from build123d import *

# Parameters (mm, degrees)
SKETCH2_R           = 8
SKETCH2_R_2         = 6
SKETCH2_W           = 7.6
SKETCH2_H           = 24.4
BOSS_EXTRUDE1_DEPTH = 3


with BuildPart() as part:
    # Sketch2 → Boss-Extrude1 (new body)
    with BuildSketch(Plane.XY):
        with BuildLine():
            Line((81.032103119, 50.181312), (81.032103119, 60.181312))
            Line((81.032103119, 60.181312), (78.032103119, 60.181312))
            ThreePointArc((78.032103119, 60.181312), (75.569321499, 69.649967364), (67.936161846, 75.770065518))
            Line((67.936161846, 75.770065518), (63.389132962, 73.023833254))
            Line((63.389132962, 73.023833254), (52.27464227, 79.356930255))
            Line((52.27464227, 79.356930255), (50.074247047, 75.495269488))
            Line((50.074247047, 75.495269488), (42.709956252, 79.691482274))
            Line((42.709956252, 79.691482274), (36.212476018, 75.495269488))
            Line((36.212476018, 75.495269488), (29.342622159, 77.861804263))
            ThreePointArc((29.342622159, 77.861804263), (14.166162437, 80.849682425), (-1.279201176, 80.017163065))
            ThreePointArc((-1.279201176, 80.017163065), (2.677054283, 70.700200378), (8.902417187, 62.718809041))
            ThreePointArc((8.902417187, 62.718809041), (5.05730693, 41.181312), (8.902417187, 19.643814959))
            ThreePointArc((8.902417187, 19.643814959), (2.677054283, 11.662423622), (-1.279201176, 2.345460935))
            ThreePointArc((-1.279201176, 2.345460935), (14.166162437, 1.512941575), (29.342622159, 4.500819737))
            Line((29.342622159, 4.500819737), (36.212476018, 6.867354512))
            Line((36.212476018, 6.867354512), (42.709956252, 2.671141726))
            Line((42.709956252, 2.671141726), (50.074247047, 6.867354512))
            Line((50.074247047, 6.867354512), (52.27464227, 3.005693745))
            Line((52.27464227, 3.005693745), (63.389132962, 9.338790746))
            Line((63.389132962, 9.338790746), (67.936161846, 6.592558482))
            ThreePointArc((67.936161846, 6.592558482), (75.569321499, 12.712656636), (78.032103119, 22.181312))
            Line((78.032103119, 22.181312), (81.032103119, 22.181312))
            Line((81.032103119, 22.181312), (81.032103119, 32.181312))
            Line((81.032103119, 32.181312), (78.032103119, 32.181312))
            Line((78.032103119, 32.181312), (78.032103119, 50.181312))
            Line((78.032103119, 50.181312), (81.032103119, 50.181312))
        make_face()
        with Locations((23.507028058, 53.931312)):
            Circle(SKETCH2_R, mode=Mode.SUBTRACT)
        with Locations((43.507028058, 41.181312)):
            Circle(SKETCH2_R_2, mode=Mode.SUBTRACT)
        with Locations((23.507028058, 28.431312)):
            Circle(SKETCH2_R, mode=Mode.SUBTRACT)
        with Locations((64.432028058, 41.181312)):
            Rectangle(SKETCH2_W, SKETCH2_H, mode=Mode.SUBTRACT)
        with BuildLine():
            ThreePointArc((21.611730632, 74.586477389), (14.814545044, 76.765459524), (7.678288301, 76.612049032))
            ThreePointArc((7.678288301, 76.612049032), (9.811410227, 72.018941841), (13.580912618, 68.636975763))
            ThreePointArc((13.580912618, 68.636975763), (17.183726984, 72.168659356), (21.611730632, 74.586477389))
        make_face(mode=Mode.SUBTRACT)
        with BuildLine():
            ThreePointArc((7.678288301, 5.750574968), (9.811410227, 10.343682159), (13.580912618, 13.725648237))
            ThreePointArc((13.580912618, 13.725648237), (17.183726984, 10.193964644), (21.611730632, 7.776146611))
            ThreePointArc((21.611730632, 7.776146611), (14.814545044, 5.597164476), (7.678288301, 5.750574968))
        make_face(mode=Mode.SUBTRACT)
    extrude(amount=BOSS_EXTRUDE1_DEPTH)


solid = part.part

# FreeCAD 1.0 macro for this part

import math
import FreeCAD as App
import Part
import Sketcher
Q = App.Units.Quantity

doc = App.newDocument("Part")
body = doc.addObject("PartDesign::Body", "Body")

# Sketch on XY plane
sketch1 = body.newObject("Sketcher::SketchObject", "Sketch")
sketch1.AttachmentSupport = (doc.getObject("XY_Plane"), [""])
sketch1.MapMode = "FlatFace"
sketch1.addGeometry(Part.LineSegment(App.Vector(81, 50.2, 0), App.Vector(81, 60.2, 0)), False)
sketch1.addGeometry(Part.LineSegment(App.Vector(81, 60.2, 0), App.Vector(78, 60.2, 0)), False)
sketch1.addGeometry(Part.ArcOfCircle(Part.Circle(App.Vector(62.5, 61.2, 0), App.Vector(0, 0, 1), 15.5), math.radians(-4), math.radians(70)), False)
sketch1.addGeometry(Part.LineSegment(App.Vector(67.9, 75.8, 0), App.Vector(63.4, 73, 0)), False)
sketch1.addGeometry(Part.LineSegment(App.Vector(63.4, 73, 0), App.Vector(52.3, 79.4, 0)), False)
sketch1.addGeometry(Part.LineSegment(App.Vector(52.3, 79.4, 0), App.Vector(50.1, 75.5, 0)), False)
sketch1.addGeometry(Part.LineSegment(App.Vector(50.1, 75.5, 0), App.Vector(42.7, 79.7, 0)), False)
sketch1.addGeometry(Part.LineSegment(App.Vector(42.7, 79.7, 0), App.Vector(36.2, 75.5, 0)), False)
sketch1.addGeometry(Part.LineSegment(App.Vector(36.2, 75.5, 0), App.Vector(29.3, 77.9, 0)), False)
sketch1.addGeometry(Part.ArcOfCircle(Part.Circle(App.Vector(9.8, 18.5, 0), App.Vector(0, 0, 1), 62.5), math.radians(72), math.radians(100)), False)
sketch1.addGeometry(Part.ArcOfCircle(Part.Circle(App.Vector(36.2, 90.4, 0), App.Vector(0, 0, 1), 38.9), math.radians(-164), math.radians(-135)), False)
sketch1.addGeometry(Part.ArcOfCircle(Part.Circle(App.Vector(67.3, 41.2, 0), App.Vector(0, 0, 1), 62.2), math.radians(160), math.radians(200)), False)
sketch1.addGeometry(Part.ArcOfCircle(Part.Circle(App.Vector(36.2, -8.1, 0), App.Vector(0, 0, 1), 38.9), math.radians(135), math.radians(164)), False)
sketch1.addGeometry(Part.ArcOfCircle(Part.Circle(App.Vector(9.8, 63.8, 0), App.Vector(0, 0, 1), 62.5), math.radians(-100), math.radians(-72)), False)
sketch1.addGeometry(Part.LineSegment(App.Vector(29.3, 4.5, 0), App.Vector(36.2, 6.9, 0)), False)
sketch1.addGeometry(Part.LineSegment(App.Vector(36.2, 6.9, 0), App.Vector(42.7, 2.7, 0)), False)
sketch1.addGeometry(Part.LineSegment(App.Vector(42.7, 2.7, 0), App.Vector(50.1, 6.9, 0)), False)
sketch1.addGeometry(Part.LineSegment(App.Vector(50.1, 6.9, 0), App.Vector(52.3, 3, 0)), False)
sketch1.addGeometry(Part.LineSegment(App.Vector(52.3, 3, 0), App.Vector(63.4, 9.3, 0)), False)
sketch1.addGeometry(Part.LineSegment(App.Vector(63.4, 9.3, 0), App.Vector(67.9, 6.6, 0)), False)
sketch1.addGeometry(Part.ArcOfCircle(Part.Circle(App.Vector(62.5, 21.2, 0), App.Vector(0, 0, 1), 15.5), math.radians(-70), math.radians(4)), False)
sketch1.addGeometry(Part.LineSegment(App.Vector(78, 22.2, 0), App.Vector(81, 22.2, 0)), False)
sketch1.addGeometry(Part.LineSegment(App.Vector(81, 22.2, 0), App.Vector(81, 32.2, 0)), False)
sketch1.addGeometry(Part.LineSegment(App.Vector(81, 32.2, 0), App.Vector(78, 32.2, 0)), False)
sketch1.addGeometry(Part.LineSegment(App.Vector(78, 32.2, 0), App.Vector(78, 50.2, 0)), False)
sketch1.addGeometry(Part.LineSegment(App.Vector(78, 50.2, 0), App.Vector(81, 50.2, 0)), False)
sketch1.addGeometry(Part.ArcOfCircle(Part.Circle(App.Vector(11.7, 27, 0), App.Vector(0, 0, 1), 21.6), math.radians(-101), math.radians(-63)), False)
sketch1.addGeometry(Part.ArcOfCircle(Part.Circle(App.Vector(19.9, 2.8, 0), App.Vector(0, 0, 1), 12.6), math.radians(120), math.radians(167)), False)
sketch1.addGeometry(Part.ArcOfCircle(Part.Circle(App.Vector(28.1, 24.9, 0), App.Vector(0, 0, 1), 18.4), math.radians(-142), math.radians(-111)), False)
sketch1.addGeometry(Part.Circle(App.Vector(23.5, 28.4, 0), App.Vector(0, 0, 1), 8), False)
sketch1.addGeometry(Part.Circle(App.Vector(23.5, 53.9, 0), App.Vector(0, 0, 1), 8), False)
sketch1.addGeometry(Part.ArcOfCircle(Part.Circle(App.Vector(11.7, 55.4, 0), App.Vector(0, 0, 1), 21.6), math.radians(63), math.radians(101)), False)
sketch1.addGeometry(Part.ArcOfCircle(Part.Circle(App.Vector(28.1, 57.4, 0), App.Vector(0, 0, 1), 18.4), math.radians(111), math.radians(142)), False)
sketch1.addGeometry(Part.ArcOfCircle(Part.Circle(App.Vector(19.9, 79.5, 0), App.Vector(0, 0, 1), 12.6), math.radians(-167), math.radians(-120)), False)
sketch1.addGeometry(Part.Circle(App.Vector(43.5, 41.2, 0), App.Vector(0, 0, 1), 6), False)
sketch1.addGeometry(Part.LineSegment(App.Vector(68.2, 29, 0), App.Vector(60.6, 29, 0)), False)
sketch1.addGeometry(Part.LineSegment(App.Vector(60.6, 29, 0), App.Vector(60.6, 53.4, 0)), False)
sketch1.addGeometry(Part.LineSegment(App.Vector(60.6, 53.4, 0), App.Vector(68.2, 53.4, 0)), False)
sketch1.addGeometry(Part.LineSegment(App.Vector(68.2, 53.4, 0), App.Vector(68.2, 29, 0)), False)
sketch1.addConstraint(Sketcher.Constraint("Coincident", 0, 2, 1, 1))
sketch1.addConstraint(Sketcher.Constraint("Coincident", 1, 2, 2, 1))
sketch1.addConstraint(Sketcher.Constraint("Coincident", 2, 2, 3, 1))
sketch1.addConstraint(Sketcher.Constraint("Coincident", 3, 2, 4, 1))
sketch1.addConstraint(Sketcher.Constraint("Coincident", 4, 2, 5, 1))
sketch1.addConstraint(Sketcher.Constraint("Coincident", 5, 2, 6, 1))
sketch1.addConstraint(Sketcher.Constraint("Coincident", 6, 2, 7, 1))
sketch1.addConstraint(Sketcher.Constraint("Coincident", 7, 2, 8, 1))
sketch1.addConstraint(Sketcher.Constraint("Coincident", 8, 2, 9, 1))
sketch1.addConstraint(Sketcher.Constraint("Coincident", 9, 2, 10, 1))
sketch1.addConstraint(Sketcher.Constraint("Coincident", 10, 2, 11, 1))
sketch1.addConstraint(Sketcher.Constraint("Coincident", 11, 2, 12, 1))
sketch1.addConstraint(Sketcher.Constraint("Coincident", 12, 2, 13, 1))
sketch1.addConstraint(Sketcher.Constraint("Coincident", 13, 2, 14, 1))
sketch1.addConstraint(Sketcher.Constraint("Coincident", 14, 2, 15, 1))
sketch1.addConstraint(Sketcher.Constraint("Coincident", 15, 2, 16, 1))
sketch1.addConstraint(Sketcher.Constraint("Coincident", 16, 2, 17, 1))
sketch1.addConstraint(Sketcher.Constraint("Coincident", 17, 2, 18, 1))
sketch1.addConstraint(Sketcher.Constraint("Coincident", 18, 2, 19, 1))
sketch1.addConstraint(Sketcher.Constraint("Coincident", 19, 2, 20, 1))
sketch1.addConstraint(Sketcher.Constraint("Coincident", 20, 2, 21, 1))
sketch1.addConstraint(Sketcher.Constraint("Coincident", 21, 2, 22, 1))
sketch1.addConstraint(Sketcher.Constraint("Coincident", 22, 2, 23, 1))
sketch1.addConstraint(Sketcher.Constraint("Coincident", 23, 2, 24, 1))
sketch1.addConstraint(Sketcher.Constraint("Coincident", 24, 2, 25, 1))
sketch1.addConstraint(Sketcher.Constraint("Coincident", 25, 2, 0, 1))
sketch1.addConstraint(Sketcher.Constraint("Coincident", 26, 1, 27, 2))
sketch1.addConstraint(Sketcher.Constraint("Coincident", 27, 1, 28, 1))
sketch1.addConstraint(Sketcher.Constraint("Coincident", 28, 2, 26, 2))
sketch1.addConstraint(Sketcher.Constraint("Coincident", 31, 1, 32, 1))
sketch1.addConstraint(Sketcher.Constraint("Coincident", 32, 2, 33, 2))
sketch1.addConstraint(Sketcher.Constraint("Coincident", 33, 1, 31, 2))
sketch1.addConstraint(Sketcher.Constraint("Coincident", 35, 2, 36, 1))
sketch1.addConstraint(Sketcher.Constraint("Coincident", 36, 2, 37, 1))
sketch1.addConstraint(Sketcher.Constraint("Coincident", 37, 2, 38, 1))
sketch1.addConstraint(Sketcher.Constraint("Coincident", 38, 2, 35, 1))
sketch1.addConstraint(Sketcher.Constraint("Vertical", 0))
sketch1.addConstraint(Sketcher.Constraint("Horizontal", 1))
sketch1.addConstraint(Sketcher.Constraint("Horizontal", 21))
sketch1.addConstraint(Sketcher.Constraint("Vertical", 22))
sketch1.addConstraint(Sketcher.Constraint("Horizontal", 23))
sketch1.addConstraint(Sketcher.Constraint("Vertical", 24))
sketch1.addConstraint(Sketcher.Constraint("Horizontal", 25))
sketch1.addConstraint(Sketcher.Constraint("Horizontal", 35))
sketch1.addConstraint(Sketcher.Constraint("Vertical", 36))
sketch1.addConstraint(Sketcher.Constraint("Horizontal", 37))
sketch1.addConstraint(Sketcher.Constraint("Vertical", 38))
sketch1.addConstraint(Sketcher.Constraint("Equal", 10, 12))
sketch1.addConstraint(Sketcher.Constraint("Equal", 9, 13))
sketch1.addConstraint(Sketcher.Constraint("Equal", 2, 20))
sketch1.addConstraint(Sketcher.Constraint("Equal", 29, 30))
sketch1.addConstraint(Sketcher.Constraint("Equal", 26, 31))
sketch1.addConstraint(Sketcher.Constraint("Equal", 28, 32))
sketch1.addConstraint(Sketcher.Constraint("Equal", 27, 33))
sketch1.addConstraint(Sketcher.Constraint("Perpendicular", 4, 5))
sketch1.addConstraint(Sketcher.Constraint("Perpendicular", 5, 6))
sketch1.addConstraint(Sketcher.Constraint("Perpendicular", 16, 17))
sketch1.addConstraint(Sketcher.Constraint("Perpendicular", 17, 18))
sketch1.addConstraint(Sketcher.Constraint("Horizontal", 11, 3, 34, 3))
sketch1.addConstraint(Sketcher.Constraint("Horizontal", 5, 2, 7, 2))
sketch1.addConstraint(Sketcher.Constraint("Horizontal", 14, 2, 16, 2))
sketch1.addConstraint(Sketcher.Constraint("Vertical", 10, 3, 12, 3))
sketch1.addConstraint(Sketcher.Constraint("Vertical", 9, 3, 13, 3))
sketch1.addConstraint(Sketcher.Constraint("Vertical", 2, 3, 20, 3))
sketch1.addConstraint(Sketcher.Constraint("Vertical", 29, 3, 30, 3))
sketch1.addConstraint(Sketcher.Constraint("Vertical", 26, 3, 31, 3))
sketch1.addConstraint(Sketcher.Constraint("Vertical", 28, 3, 32, 3))
sketch1.addConstraint(Sketcher.Constraint("Vertical", 27, 3, 33, 3))
sketch1.addConstraint(Sketcher.Constraint("Vertical", 12, 3, 7, 2))
sketch1.addConstraint(Sketcher.Constraint("Vertical", 10, 2, 11, 2))
sketch1.addConstraint(Sketcher.Constraint("Vertical", 9, 2, 12, 2))
sketch1.addConstraint(Sketcher.Constraint("Vertical", 8, 2, 13, 2))
sketch1.addConstraint(Sketcher.Constraint("Vertical", 7, 2, 14, 2))
sketch1.addConstraint(Sketcher.Constraint("Vertical", 6, 2, 15, 2))
sketch1.addConstraint(Sketcher.Constraint("Vertical", 5, 2, 16, 2))
sketch1.addConstraint(Sketcher.Constraint("Vertical", 4, 2, 17, 2))
sketch1.addConstraint(Sketcher.Constraint("Vertical", 3, 2, 18, 2))
sketch1.addConstraint(Sketcher.Constraint("Vertical", 2, 2, 19, 2))
sketch1.addConstraint(Sketcher.Constraint("Vertical", 1, 2, 20, 2))
sketch1.addConstraint(Sketcher.Constraint("Vertical", 0, 2, 21, 2))
sketch1.addConstraint(Sketcher.Constraint("Vertical", 20, 2, 23, 2))
sketch1.addConstraint(Sketcher.Constraint("Vertical", 28, 2, 31, 1))
sketch1.addConstraint(Sketcher.Constraint("Vertical", 27, 1, 32, 2))
sketch1.addConstraint(Sketcher.Constraint("Equal", 0, 22))
sketch1.addConstraint(Sketcher.Constraint("Equal", 8, 14))
sketch1.addConstraint(Sketcher.Constraint("Equal", 7, 15))
sketch1.addConstraint(Sketcher.Constraint("Equal", 3, 19))
sketch1.addConstraint(Sketcher.Constraint("Diameter", 29, Q("16 mm")))
sketch1.addConstraint(Sketcher.Constraint("Diameter", 34, Q("12 mm")))
sketch1.addConstraint(Sketcher.Constraint("DistanceX", 1, 2, 1, 1, Q("3 mm")))
sketch1.addConstraint(Sketcher.Constraint("DistanceY", 0, 1, 0, 2, Q("10 mm")))
sketch1.addConstraint(Sketcher.Constraint("DistanceY", 24, 1, 24, 2, Q("18 mm")))
sketch1.addConstraint(Sketcher.Constraint("DistanceX", 35, 2, 35, 1, Q("7.6 mm")))
sketch1.addConstraint(Sketcher.Constraint("DistanceY", 36, 1, 36, 2, Q("24.4 mm")))
sketch1.addConstraint(Sketcher.Constraint("DistanceX", 29, 3, 34, 3, Q("20 mm")))
sketch1.addConstraint(Sketcher.Constraint("DistanceY", 29, 3, 30, 3, Q("25.5 mm")))
sketch1.addConstraint(Sketcher.Constraint("DistanceY", 35, 2, 11, 3, Q("12.2 mm")))
sketch1.addConstraint(Sketcher.Constraint("Radius", 2, Q("15.53907 mm")))
sketch1.addConstraint(Sketcher.Constraint("Radius", 9, Q("62.470432 mm")))
sketch1.addConstraint(Sketcher.Constraint("DistanceY", 29, 3, 34, 3, Q("12.75 mm")))
sketch1.addConstraint(Sketcher.Constraint("Radius", 10, Q("38.913184 mm")))
sketch1.addConstraint(Sketcher.Constraint("Radius", 11, Q("62.241213 mm")))
sketch1.addConstraint(Sketcher.Constraint("Radius", 26, Q("21.617158 mm")))
sketch1.addConstraint(Sketcher.Constraint("Radius", 27, Q("12.597733 mm")))
sketch1.addConstraint(Sketcher.Constraint("Radius", 28, Q("18.361353 mm")))
sketch1.addConstraint(Sketcher.Constraint("DistanceY", -1, 1, 13, 3, Q("63.829199 mm")))
sketch1.addConstraint(Sketcher.Constraint("DistanceX", 9, 2, -1, 1, Q("1.279201 mm")))
sketch1.addConstraint(Sketcher.Constraint("DistanceX", 9, 3, 27, 3, Q("10.157398 mm")))
sketch1.addConstraint(Sketcher.Constraint("DistanceX", 26, 3, 27, 3, Q("8.232701 mm")))
sketch1.addConstraint(Sketcher.Constraint("DistanceY", 28, 2, 27, 1, Q("5.949502 mm")))
sketch1.addConstraint(Sketcher.Constraint("Distance", 7, Q("7.734691 mm")))
sketch1.addConstraint(Sketcher.Constraint("DistanceY", -1, 1, 2, 3, Q("61.202981 mm")))
sketch1.addConstraint(Sketcher.Constraint("DistanceX", -1, 1, 11, 3, Q("67.29852 mm")))
sketch1.addConstraint(Sketcher.Constraint("DistanceY", -1, 1, 11, 3, Q("41.181312 mm")))
sketch1.addConstraint(Sketcher.Constraint("DistanceY", 12, 3, -1, 1, Q("8.076152 mm")))
sketch1.addConstraint(Sketcher.Constraint("DistanceY", -1, 1, 27, 3, Q("2.849131 mm")))
sketch1.addConstraint(Sketcher.Constraint("DistanceX", -1, 1, 29, 3, Q("23.507028 mm")))
sketch1.addConstraint(Sketcher.Constraint("DistanceY", -1, 1, 31, 3, Q("55.37317 mm")))
sketch1.addConstraint(Sketcher.Constraint("DistanceY", -1, 1, 32, 3, Q("57.414919 mm")))
sketch1.addConstraint(Sketcher.Constraint("DistanceX", -1, 1, 2, 2, Q("67.936162 mm")))
sketch1.addConstraint(Sketcher.Constraint("DistanceY", -1, 1, 4, 2, Q("79.35693 mm")))
sketch1.addConstraint(Sketcher.Constraint("DistanceY", -1, 1, 5, 2, Q("75.495269 mm")))
sketch1.addConstraint(Sketcher.Constraint("DistanceY", -1, 1, 13, 2, Q("4.50082 mm")))
sketch1.addConstraint(Sketcher.Constraint("DistanceY", -1, 1, 15, 2, Q("2.671142 mm")))
sketch1.addConstraint(Sketcher.Constraint("DistanceY", -1, 1, 18, 2, Q("9.338791 mm")))
sketch1.addConstraint(Sketcher.Constraint("DistanceY", -1, 1, 19, 2, Q("6.592558 mm")))
sketch1.addConstraint(Sketcher.Constraint("DistanceX", -1, 1, 26, 1, Q("7.678288 mm")))
sketch1.addConstraint(Sketcher.Constraint("DistanceY", -1, 1, 27, 1, Q("13.725648 mm")))
sketch1.addConstraint(Sketcher.Constraint("DistanceX", -1, 1, 35, 2, Q("60.632028 mm")))
sketch1.addConstraint(Sketcher.Constraint("DistanceX", 3, 2, 2, 2, Q("4.547029 mm")))
pad1 = body.newObject("PartDesign::Pad", "Pad")
pad1.Profile = sketch1
pad1.Length = 3

doc.recompute()
